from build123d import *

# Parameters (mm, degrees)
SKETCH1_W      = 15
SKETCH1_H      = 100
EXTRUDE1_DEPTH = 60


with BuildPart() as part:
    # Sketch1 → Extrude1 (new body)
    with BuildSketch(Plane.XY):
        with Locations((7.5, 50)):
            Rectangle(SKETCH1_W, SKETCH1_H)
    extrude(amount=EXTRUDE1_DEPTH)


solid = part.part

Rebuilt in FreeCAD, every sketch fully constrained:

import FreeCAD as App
import Part
import Sketcher


def add_polygon(sketch, points):
    """Adds a closed chain of lines whose ends are joined by coincident constraints."""
    first, n = sketch.GeometryCount, len(points)
    for a, b in zip(points, points[1:] + points[:1]):
        sketch.addGeometry(Part.LineSegment(App.Vector(*a, 0), App.Vector(*b, 0)), False)
    for i in range(n):
        sketch.addConstraint(Sketcher.Constraint("Coincident", first + i, 2, first + (i + 1) % n, 1))

doc = App.newDocument("Part")
body = doc.addObject("PartDesign::Body", "Body")

sketch1 = body.newObject("Sketcher::SketchObject", "Sketch")
sketch1.AttachmentSupport = (doc.getObject("XY_Plane"), [""])
sketch1.MapMode = "FlatFace"
add_polygon(sketch1, [(0, 100), (0, 0), (15, 0), (15, 100)])
sketch1.addConstraint([
    Sketcher.Constraint("Vertical", 0),
    Sketcher.Constraint("Horizontal", 1),
    Sketcher.Constraint("Vertical", 2),
    Sketcher.Constraint("Horizontal", 3),
    Sketcher.Constraint("Coincident", 0, 2, -1, 1),
    Sketcher.Constraint("DistanceX", 1, 1, 1, 2, 15.0),
    Sketcher.Constraint("DistanceY", 0, 2, 0, 1, 100.0),
])
pad1 = body.newObject("PartDesign::Pad", "Pad")
pad1.Profile = sketch1
pad1.Length = 60

doc.recompute()
